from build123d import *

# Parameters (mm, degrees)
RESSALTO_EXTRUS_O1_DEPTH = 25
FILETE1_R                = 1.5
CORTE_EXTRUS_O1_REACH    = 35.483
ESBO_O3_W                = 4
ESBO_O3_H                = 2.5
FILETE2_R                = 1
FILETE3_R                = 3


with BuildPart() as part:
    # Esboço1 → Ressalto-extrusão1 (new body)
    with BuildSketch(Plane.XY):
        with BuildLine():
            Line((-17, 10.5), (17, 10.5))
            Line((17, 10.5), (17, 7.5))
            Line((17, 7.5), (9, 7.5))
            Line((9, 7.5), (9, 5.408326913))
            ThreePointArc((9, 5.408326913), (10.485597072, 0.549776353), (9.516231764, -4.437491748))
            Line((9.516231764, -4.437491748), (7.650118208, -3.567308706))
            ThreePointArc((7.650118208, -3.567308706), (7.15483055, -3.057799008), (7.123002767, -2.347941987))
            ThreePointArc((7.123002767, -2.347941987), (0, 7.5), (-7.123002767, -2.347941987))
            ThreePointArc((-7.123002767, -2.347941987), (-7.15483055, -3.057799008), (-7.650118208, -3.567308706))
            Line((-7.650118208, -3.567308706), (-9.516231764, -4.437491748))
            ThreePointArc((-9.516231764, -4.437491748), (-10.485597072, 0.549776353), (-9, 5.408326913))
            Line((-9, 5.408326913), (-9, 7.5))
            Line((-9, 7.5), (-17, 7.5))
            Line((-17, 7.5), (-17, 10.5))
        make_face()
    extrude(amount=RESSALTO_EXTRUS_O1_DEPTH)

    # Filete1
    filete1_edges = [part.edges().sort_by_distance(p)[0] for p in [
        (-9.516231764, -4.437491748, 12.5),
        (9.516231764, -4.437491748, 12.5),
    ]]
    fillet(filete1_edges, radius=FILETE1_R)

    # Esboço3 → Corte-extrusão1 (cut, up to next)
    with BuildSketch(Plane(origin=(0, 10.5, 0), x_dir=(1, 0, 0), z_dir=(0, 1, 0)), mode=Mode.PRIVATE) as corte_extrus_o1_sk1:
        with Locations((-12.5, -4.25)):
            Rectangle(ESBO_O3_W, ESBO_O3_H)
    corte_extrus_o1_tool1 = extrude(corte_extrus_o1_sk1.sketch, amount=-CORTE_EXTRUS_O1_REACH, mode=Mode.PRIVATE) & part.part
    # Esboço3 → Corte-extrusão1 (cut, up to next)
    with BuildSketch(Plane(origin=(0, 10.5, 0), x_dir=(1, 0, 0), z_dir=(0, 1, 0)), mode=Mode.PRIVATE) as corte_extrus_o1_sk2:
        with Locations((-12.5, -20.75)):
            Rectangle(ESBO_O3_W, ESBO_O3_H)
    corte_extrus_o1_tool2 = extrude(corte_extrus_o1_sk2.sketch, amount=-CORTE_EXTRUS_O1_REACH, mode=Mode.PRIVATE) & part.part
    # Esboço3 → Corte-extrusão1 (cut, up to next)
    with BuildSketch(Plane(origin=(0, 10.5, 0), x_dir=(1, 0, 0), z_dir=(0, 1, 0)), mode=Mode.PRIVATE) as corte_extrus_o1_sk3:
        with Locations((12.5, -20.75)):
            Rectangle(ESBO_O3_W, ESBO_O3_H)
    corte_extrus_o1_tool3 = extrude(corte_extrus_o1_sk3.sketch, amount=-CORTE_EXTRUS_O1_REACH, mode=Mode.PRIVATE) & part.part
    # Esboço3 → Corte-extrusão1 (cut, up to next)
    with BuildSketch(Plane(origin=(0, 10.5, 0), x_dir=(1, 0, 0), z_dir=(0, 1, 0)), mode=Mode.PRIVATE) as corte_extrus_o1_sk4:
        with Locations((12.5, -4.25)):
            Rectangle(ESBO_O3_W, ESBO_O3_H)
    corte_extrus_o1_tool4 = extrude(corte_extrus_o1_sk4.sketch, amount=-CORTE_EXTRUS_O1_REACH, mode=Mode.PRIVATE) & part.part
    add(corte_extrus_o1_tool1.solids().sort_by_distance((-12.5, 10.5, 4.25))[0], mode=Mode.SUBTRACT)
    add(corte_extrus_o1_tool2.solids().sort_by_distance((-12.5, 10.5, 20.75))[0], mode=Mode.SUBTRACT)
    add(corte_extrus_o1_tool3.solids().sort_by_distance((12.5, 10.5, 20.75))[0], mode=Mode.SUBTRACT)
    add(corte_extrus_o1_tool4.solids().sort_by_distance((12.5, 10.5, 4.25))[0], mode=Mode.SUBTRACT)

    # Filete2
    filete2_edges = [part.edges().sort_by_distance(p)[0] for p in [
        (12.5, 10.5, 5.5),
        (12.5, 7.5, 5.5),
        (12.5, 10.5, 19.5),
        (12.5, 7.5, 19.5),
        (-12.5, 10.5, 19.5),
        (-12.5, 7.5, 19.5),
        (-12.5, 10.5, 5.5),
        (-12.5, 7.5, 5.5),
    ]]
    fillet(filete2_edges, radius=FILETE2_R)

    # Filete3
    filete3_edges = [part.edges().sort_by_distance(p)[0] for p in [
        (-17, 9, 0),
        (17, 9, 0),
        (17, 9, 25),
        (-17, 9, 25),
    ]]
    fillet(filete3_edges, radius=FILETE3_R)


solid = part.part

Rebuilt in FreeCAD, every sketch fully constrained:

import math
import FreeCAD as App
import Part
import Sketcher
Q = App.Units.Quantity


def edges_at(feature, points):
    """Names of the edges that pass closest to the given points."""
    edges = feature.Shape.Edges
    near = lambda p: min(range(len(edges)), key=lambda i: edges[i].distToShape(Part.Vertex(*p))[0])
    return sorted({f"Edge{near(p) + 1}" for p in points})


def add_polygon(sketch, points):
    """Adds a closed chain of lines whose ends are joined by coincident constraints."""
    first, n = sketch.GeometryCount, len(points)
    for a, b in zip(points, points[1:] + points[:1]):
        sketch.addGeometry(Part.LineSegment(App.Vector(*a, 0), App.Vector(*b, 0)), False)
    for i in range(n):
        sketch.addConstraint(Sketcher.Constraint("Coincident", first + i, 2, first + (i + 1) % n, 1))

doc = App.newDocument("Part")
body = doc.addObject("PartDesign::Body", "Body")

sketch1 = doc.addObject("Sketcher::SketchObject", "Sketch")
body.addObject(sketch1)
sketch1.AttachmentSupport = (doc.XY_Plane, [""])
sketch1.MapMode = "FlatFace"
sketch1.addGeometry([
    Part.LineSegment(App.Vector(17, 10.5, 0), App.Vector(-17, 10.5, 0)),
    Part.LineSegment(App.Vector(-17, 10.5, 0), App.Vector(-17, 7.5, 0)),
    Part.LineSegment(App.Vector(-17, 7.5, 0), App.Vector(-9, 7.5, 0)),
    Part.LineSegment(App.Vector(-9, 7.5, 0), App.Vector(-9, 5.4, 0)),
    Part.ArcOfCircle(Part.Circle(App.Vector(0, 0, 0), App.Vector(0, 0, 1), 10.5), math.radians(149), math.radians(205)),
    Part.LineSegment(App.Vector(-9.5, -4.4, 0), App.Vector(-7.7, -3.6, 0)),
    Part.ArcOfCircle(Part.Circle(App.Vector(-8.1, -2.7, 0), App.Vector(0, 0, 1), 1), math.radians(-65), math.radians(18)),
    Part.ArcOfCircle(Part.Circle(App.Vector(0, 0, 0), App.Vector(0, 0, 1), 7.5), math.radians(-18), math.radians(198)),
    Part.ArcOfCircle(Part.Circle(App.Vector(8.1, -2.7, 0), App.Vector(0, 0, 1), 1), math.radians(162), math.radians(245)),
    Part.LineSegment(App.Vector(7.7, -3.6, 0), App.Vector(9.5, -4.4, 0)),
    Part.ArcOfCircle(Part.Circle(App.Vector(0, 0, 0), App.Vector(0, 0, 1), 10.5), math.radians(-25), math.radians(31)),
    Part.LineSegment(App.Vector(9, 5.4, 0), App.Vector(9, 7.5, 0)),
    Part.LineSegment(App.Vector(9, 7.5, 0), App.Vector(17, 7.5, 0)),
    Part.LineSegment(App.Vector(17, 7.5, 0), App.Vector(17, 10.5, 0)),
], False)
sketch1.addConstraint([
    Sketcher.Constraint("Coincident", 0, 2, 1, 1),
    Sketcher.Constraint("Coincident", 1, 2, 2, 1),
    Sketcher.Constraint("Coincident", 2, 2, 3, 1),
    Sketcher.Constraint("Coincident", 3, 2, 4, 1),
    Sketcher.Constraint("Coincident", 4, 2, 5, 1),
    Sketcher.Constraint("Tangent", 5, 2, 6, 1),
    Sketcher.Constraint("Tangent", 6, 2, 7, 2),
    Sketcher.Constraint("Tangent", 7, 1, 8, 1),
    Sketcher.Constraint("Tangent", 8, 2, 9, 1),
    Sketcher.Constraint("Coincident", 9, 2, 10, 1),
    Sketcher.Constraint("Coincident", 10, 2, 11, 1),
    Sketcher.Constraint("Coincident", 11, 2, 12, 1),
    Sketcher.Constraint("Coincident", 12, 2, 13, 1),
    Sketcher.Constraint("Coincident", 13, 2, 0, 1),
    Sketcher.Constraint("Horizontal", 0),
    Sketcher.Constraint("Vertical", 1),
    Sketcher.Constraint("Horizontal", 2),
    Sketcher.Constraint("Vertical", 3),
    Sketcher.Constraint("Vertical", 11),
    Sketcher.Constraint("Horizontal", 12),
    Sketcher.Constraint("Vertical", 13),
    Sketcher.Constraint("Coincident", 4, 3, -1, 1),
    Sketcher.Constraint("Coincident", 7, 3, -1, 1),
    Sketcher.Constraint("Coincident", 10, 3, -1, 1),
    Sketcher.Constraint("Equal", 6, 8),
    Sketcher.Constraint("Equal", 4, 10),
    Sketcher.Constraint("Symmetric", 5, 2, 8, 2, -2),
    Sketcher.Constraint("Symmetric", 2, 2, 11, 2, -2),
    Sketcher.Constraint("Equal", 2, 12),
    Sketcher.Constraint("Radius", 6, Q("1 mm")),
    Sketcher.Constraint("Radius", 4, Q("10.5 mm")),
    Sketcher.Constraint("Radius", 7, Q("7.5 mm")),
    Sketcher.Constraint("DistanceX", 0, 2, 0, 1, Q("34 mm")),
    Sketcher.Constraint("DistanceX", 2, 1, 2, 2, Q("8 mm")),
    Sketcher.Constraint("DistanceY", 1, 2, 1, 1, Q("3 mm")),
    Sketcher.Constraint("Angle", 5, Q("25 deg")),
    Sketcher.Constraint("DistanceY", -1, 1, 0, 2, Q("10.5 mm")),
    Sketcher.Constraint("DistanceY", 6, 3, -1, 1, Q("2.661001 mm")),
])
pad1 = doc.addObject("PartDesign::Pad", "Pad")
body.addObject(pad1)
pad1.Profile = sketch1
pad1.Length = 25
doc.recompute()

fillet = doc.addObject("PartDesign::Fillet", "Fillet")
body.addObject(fillet)
fillet.Base = (pad1, edges_at(pad1, [(-9.516, -4.437, 12.5), (9.516, -4.437, 12.5)]))
fillet.Radius = 1.5

sketch2 = doc.addObject("Sketcher::SketchObject", "Sketch001")
body.addObject(sketch2)
sketch2.AttachmentSupport = (doc.XZ_Plane, [""])
sketch2.MapMode = "FlatFace"
sketch2.AttachmentOffset = App.Placement(App.Vector(0, 0, -10.5), App.Rotation())
add_polygon(sketch2, [(-14.5, 3), (-14.5, 5.5), (-10.5, 5.5), (-10.5, 3)])
sketch2.addConstraint([
    Sketcher.Constraint("Vertical", 0),
    Sketcher.Constraint("Horizontal", 1),
    Sketcher.Constraint("Vertical", 2),
    Sketcher.Constraint("Horizontal", 3),
    Sketcher.Constraint("DistanceX", 1, 1, 1, 2, Q("4 mm")),
    Sketcher.Constraint("DistanceY", 0, 1, 0, 2, Q("2.5 mm")),
    Sketcher.Constraint("DistanceY", -1, 1, 2, 2, Q("3 mm")),
    Sketcher.Constraint("DistanceX", 0, 2, -1, 1, Q("14.5 mm")),
])
pocket1 = doc.addObject("PartDesign::Pocket", "Pocket")
body.addObject(pocket1)
pocket1.Profile = sketch2
pocket1.Type = "UpToFirst"
pocket1.Reversed = True

sketch3 = doc.addObject("Sketcher::SketchObject", "Sketch002")
body.addObject(sketch3)
sketch3.AttachmentSupport = (doc.XZ_Plane, [""])
sketch3.MapMode = "FlatFace"
sketch3.AttachmentOffset = App.Placement(App.Vector(0, 0, -10.5), App.Rotation())
add_polygon(sketch3, [(-14.5, 19.5), (-14.5, 22), (-10.5, 22), (-10.5, 19.5)])
sketch3.addConstraint([
    Sketcher.Constraint("Vertical", 0),
    Sketcher.Constraint("Horizontal", 1),
    Sketcher.Constraint("Vertical", 2),
    Sketcher.Constraint("Horizontal", 3),
    Sketcher.Constraint("DistanceX", 1, 1, 1, 2, Q("4 mm")),
    Sketcher.Constraint("DistanceY", 0, 1, 0, 2, Q("2.5 mm")),
    Sketcher.Constraint("DistanceY", -1, 1, 0, 2, Q("22 mm")),
    Sketcher.Constraint("DistanceX", 0, 2, -1, 1, Q("14.5 mm")),
])
pocket2 = doc.addObject("PartDesign::Pocket", "Pocket001")
body.addObject(pocket2)
pocket2.Profile = sketch3
pocket2.Type = "UpToFirst"
pocket2.Reversed = True

sketch4 = doc.addObject("Sketcher::SketchObject", "Sketch003")
body.addObject(sketch4)
sketch4.AttachmentSupport = (doc.XZ_Plane, [""])
sketch4.MapMode = "FlatFace"
sketch4.AttachmentOffset = App.Placement(App.Vector(0, 0, -10.5), App.Rotation())
add_polygon(sketch4, [(10.5, 19.5), (10.5, 22), (14.5, 22), (14.5, 19.5)])
sketch4.addConstraint([
    Sketcher.Constraint("Vertical", 0),
    Sketcher.Constraint("Horizontal", 1),
    Sketcher.Constraint("Vertical", 2),
    Sketcher.Constraint("Horizontal", 3),
    Sketcher.Constraint("DistanceX", 1, 1, 1, 2, Q("4 mm")),
    Sketcher.Constraint("DistanceY", 0, 1, 0, 2, Q("2.5 mm")),
    Sketcher.Constraint("DistanceY", -1, 1, 0, 2, Q("22 mm")),
    Sketcher.Constraint("DistanceX", -1, 1, 0, 2, Q("10.5 mm")),
])
pocket3 = doc.addObject("PartDesign::Pocket", "Pocket002")
body.addObject(pocket3)
pocket3.Profile = sketch4
pocket3.Type = "UpToFirst"
pocket3.Reversed = True

sketch5 = doc.addObject("Sketcher::SketchObject", "Sketch004")
body.addObject(sketch5)
sketch5.AttachmentSupport = (doc.XZ_Plane, [""])
sketch5.MapMode = "FlatFace"
sketch5.AttachmentOffset = App.Placement(App.Vector(0, 0, -10.5), App.Rotation())
add_polygon(sketch5, [(10.5, 3), (10.5, 5.5), (14.5, 5.5), (14.5, 3)])
sketch5.addConstraint([
    Sketcher.Constraint("Vertical", 0),
    Sketcher.Constraint("Horizontal", 1),
    Sketcher.Constraint("Vertical", 2),
    Sketcher.Constraint("Horizontal", 3),
    Sketcher.Constraint("DistanceX", 1, 1, 1, 2, Q("4 mm")),
    Sketcher.Constraint("DistanceY", 0, 1, 0, 2, Q("2.5 mm")),
    Sketcher.Constraint("DistanceY", -1, 1, 2, 2, Q("3 mm")),
    Sketcher.Constraint("DistanceX", -1, 1, 0, 2, Q("10.5 mm")),
])
pocket4 = doc.addObject("PartDesign::Pocket", "Pocket003")
body.addObject(pocket4)
pocket4.Profile = sketch5
pocket4.Type = "UpToFirst"
pocket4.Reversed = True
doc.recompute()

fillet2 = doc.addObject("PartDesign::Fillet", "Fillet001")
body.addObject(fillet2)
fillet2.Base = (pocket4, edges_at(pocket4, [
    (12.5, 10.5, 5.5),
    (12.5, 7.5, 5.5),
    (12.5, 10.5, 19.5),
    (12.5, 7.5, 19.5),
    (-12.5, 10.5, 19.5),
    (-12.5, 7.5, 19.5),
    (-12.5, 10.5, 5.5),
    (-12.5, 7.5, 5.5),
]))
fillet2.Radius = 1
doc.recompute()

fillet3 = doc.addObject("PartDesign::Fillet", "Fillet002")
body.addObject(fillet3)
fillet3.Base = (fillet2, edges_at(fillet2, [
    (-17, 9, 0),
    (17, 9, 0),
    (17, 9, 25),
    (-17, 9, 25),
]))
fillet3.Radius = 3

doc.recompute()
